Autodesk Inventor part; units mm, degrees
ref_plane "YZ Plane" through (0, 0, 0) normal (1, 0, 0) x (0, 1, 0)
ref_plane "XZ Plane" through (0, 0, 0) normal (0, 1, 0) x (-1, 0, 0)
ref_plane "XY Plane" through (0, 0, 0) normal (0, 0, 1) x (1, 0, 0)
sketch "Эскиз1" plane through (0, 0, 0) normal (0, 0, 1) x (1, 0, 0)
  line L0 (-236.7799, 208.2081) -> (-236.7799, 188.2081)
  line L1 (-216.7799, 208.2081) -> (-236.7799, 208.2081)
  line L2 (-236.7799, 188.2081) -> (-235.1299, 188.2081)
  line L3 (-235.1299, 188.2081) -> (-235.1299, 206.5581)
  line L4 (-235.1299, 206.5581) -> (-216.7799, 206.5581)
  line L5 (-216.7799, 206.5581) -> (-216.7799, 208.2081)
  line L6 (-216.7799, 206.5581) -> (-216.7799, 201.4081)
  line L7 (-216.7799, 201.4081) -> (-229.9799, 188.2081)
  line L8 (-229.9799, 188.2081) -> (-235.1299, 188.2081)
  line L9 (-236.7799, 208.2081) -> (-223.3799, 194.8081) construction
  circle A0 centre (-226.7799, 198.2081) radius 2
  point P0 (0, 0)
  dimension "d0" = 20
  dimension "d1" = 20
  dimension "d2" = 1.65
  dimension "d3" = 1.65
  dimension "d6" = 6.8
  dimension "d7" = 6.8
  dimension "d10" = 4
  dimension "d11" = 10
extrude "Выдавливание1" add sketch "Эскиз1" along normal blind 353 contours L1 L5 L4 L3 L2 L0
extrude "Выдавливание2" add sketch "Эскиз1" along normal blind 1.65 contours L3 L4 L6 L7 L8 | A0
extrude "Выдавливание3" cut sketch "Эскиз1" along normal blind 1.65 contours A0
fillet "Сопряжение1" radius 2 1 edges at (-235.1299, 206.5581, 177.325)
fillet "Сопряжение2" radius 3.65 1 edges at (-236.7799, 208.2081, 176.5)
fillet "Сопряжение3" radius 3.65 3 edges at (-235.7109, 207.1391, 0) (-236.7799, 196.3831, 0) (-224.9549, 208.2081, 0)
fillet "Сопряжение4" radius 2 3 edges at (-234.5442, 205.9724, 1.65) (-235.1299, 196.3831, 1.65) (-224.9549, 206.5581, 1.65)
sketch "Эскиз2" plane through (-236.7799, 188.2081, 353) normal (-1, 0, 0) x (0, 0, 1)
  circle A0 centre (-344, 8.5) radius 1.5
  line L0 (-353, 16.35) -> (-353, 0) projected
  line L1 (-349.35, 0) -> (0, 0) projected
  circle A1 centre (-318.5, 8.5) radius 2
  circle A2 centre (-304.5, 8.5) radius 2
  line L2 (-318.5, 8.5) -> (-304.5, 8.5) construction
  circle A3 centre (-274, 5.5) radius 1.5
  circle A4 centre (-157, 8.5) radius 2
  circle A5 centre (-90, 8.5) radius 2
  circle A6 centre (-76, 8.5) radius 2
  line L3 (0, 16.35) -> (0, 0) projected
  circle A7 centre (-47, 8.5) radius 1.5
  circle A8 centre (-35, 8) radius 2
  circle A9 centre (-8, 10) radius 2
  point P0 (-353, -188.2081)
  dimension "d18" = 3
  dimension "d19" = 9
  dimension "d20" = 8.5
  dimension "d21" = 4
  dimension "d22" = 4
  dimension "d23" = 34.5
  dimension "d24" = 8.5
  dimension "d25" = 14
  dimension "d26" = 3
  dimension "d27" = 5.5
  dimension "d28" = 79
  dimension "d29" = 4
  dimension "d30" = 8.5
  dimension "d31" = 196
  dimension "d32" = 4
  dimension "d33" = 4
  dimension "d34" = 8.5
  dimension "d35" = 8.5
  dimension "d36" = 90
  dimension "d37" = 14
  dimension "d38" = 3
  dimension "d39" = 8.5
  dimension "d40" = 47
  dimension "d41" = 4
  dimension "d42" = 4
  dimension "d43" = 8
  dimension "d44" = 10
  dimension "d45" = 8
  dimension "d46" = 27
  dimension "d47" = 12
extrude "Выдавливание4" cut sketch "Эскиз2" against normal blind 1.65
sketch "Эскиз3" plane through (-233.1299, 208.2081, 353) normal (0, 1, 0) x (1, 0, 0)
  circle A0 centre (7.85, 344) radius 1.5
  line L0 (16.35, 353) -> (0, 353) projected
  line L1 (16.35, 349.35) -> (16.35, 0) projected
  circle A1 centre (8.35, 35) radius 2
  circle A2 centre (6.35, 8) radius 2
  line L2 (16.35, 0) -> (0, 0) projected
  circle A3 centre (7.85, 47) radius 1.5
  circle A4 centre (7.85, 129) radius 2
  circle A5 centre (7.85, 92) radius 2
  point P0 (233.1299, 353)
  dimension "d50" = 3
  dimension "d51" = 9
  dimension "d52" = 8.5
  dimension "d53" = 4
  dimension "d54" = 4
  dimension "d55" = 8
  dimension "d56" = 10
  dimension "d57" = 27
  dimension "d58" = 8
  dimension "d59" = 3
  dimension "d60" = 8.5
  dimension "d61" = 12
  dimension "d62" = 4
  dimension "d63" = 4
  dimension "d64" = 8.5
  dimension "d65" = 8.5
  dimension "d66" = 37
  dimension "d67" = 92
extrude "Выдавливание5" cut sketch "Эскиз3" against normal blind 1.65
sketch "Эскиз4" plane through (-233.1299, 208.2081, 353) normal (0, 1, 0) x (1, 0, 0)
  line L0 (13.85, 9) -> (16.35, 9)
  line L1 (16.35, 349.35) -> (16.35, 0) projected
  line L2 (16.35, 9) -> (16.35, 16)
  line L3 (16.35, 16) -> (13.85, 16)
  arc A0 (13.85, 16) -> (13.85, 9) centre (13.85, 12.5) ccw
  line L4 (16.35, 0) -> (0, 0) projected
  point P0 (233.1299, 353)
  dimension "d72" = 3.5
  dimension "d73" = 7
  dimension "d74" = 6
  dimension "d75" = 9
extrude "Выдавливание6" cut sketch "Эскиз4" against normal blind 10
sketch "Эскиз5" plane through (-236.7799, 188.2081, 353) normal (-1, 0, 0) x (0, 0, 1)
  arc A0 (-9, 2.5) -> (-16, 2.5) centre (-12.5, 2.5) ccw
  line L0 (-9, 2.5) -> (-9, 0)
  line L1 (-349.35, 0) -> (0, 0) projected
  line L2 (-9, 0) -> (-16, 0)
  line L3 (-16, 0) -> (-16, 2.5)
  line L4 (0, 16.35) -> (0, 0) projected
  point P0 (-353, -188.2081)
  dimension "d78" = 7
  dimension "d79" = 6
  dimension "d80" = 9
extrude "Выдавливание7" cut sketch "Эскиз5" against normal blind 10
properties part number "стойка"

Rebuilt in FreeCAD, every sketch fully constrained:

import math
import FreeCAD as App
import Part
import Sketcher

V = App.Vector
Q = App.Units.Quantity


def edges_at(feature, points):
    """Names of the edges that pass closest to the given points."""
    edges = feature.Shape.Edges
    near = lambda p: min(range(len(edges)), key=lambda i: edges[i].distToShape(Part.Vertex(*p))[0])
    return sorted({f"Edge{near(p) + 1}" for p in points})


def add_polygon(sketch, points):
    """Adds a closed chain of lines whose ends are joined by coincident constraints."""
    first, n = sketch.GeometryCount, len(points)
    for a, b in zip(points, points[1:] + points[:1]):
        sketch.addGeometry(Part.LineSegment(App.Vector(*a, 0), App.Vector(*b, 0)), False)
    for i in range(n):
        sketch.addConstraint(Sketcher.Constraint("Coincident", first + i, 2, first + (i + 1) % n, 1))

doc = App.newDocument("Part")
params = doc.addObject("Spreadsheet::Sheet", "Params")
for row, (alias, value) in enumerate([
    ("sketch1_width", "20 mm"),
    ("sketch1_width2", "1.65 mm"),
    ("pad1_length", "353 mm"),
    ("sketch2_width", "5.15 mm"),
    ("sketch2_width2", "18.35 mm"),
    ("pad2_length", "1.65 mm"),
    ("sketch3_diameter", "4 mm"),
    ("pocket1_length", "1.65 mm"),
    ("fillet_radius", "2 mm"),
    ("fillet2_radius", "3.65 mm"),
    ("fillet3_radius", "3.65 mm"),
    ("fillet4_radius", "2 mm"),
    ("sketch4_diameter", "3 mm"),
    ("sketch4_diameter2", "4 mm"),
    ("pocket2_length", "1.65 mm"),
    ("sketch5_diameter", "3 mm"),
    ("sketch5_diameter2", "4 mm"),
    ("pocket3_length", "1.65 mm"),
    ("sketch6_radius", "3.5 mm"),
    ("sketch6_width", "2.5 mm"),
    ("pocket4_length", "10 mm"),
    ("sketch7_radius", "3.5 mm"),
    ("sketch7_width", "2.5 mm"),
    ("pocket5_length", "10 mm"),
], start=1):
    params.set(f"A{row}", alias)
    params.set(f"B{row}", "=" + value)
    params.setAlias(f"B{row}", alias)

body = doc.addObject("PartDesign::Body", "Body")

# Sketch on XY plane
sketch1 = body.newObject("Sketcher::SketchObject", "Sketch")
sketch1.AttachmentSupport = (doc.getObject("XY_Plane"), [""])
sketch1.MapMode = "FlatFace"
add_polygon(sketch1, [(-216.8, 208.2), (-236.8, 208.2), (-236.8, 188.2), (-235.1, 188.2), (-235.1, 206.6), (-216.8, 206.6)])  # lines 0-5
sketch1.addConstraint([
    Sketcher.Constraint("Horizontal", 0),
    Sketcher.Constraint("Vertical", 1),
    Sketcher.Constraint("Horizontal", 2),
    Sketcher.Constraint("Vertical", 3),
    Sketcher.Constraint("Horizontal", 4),
    Sketcher.Constraint("Vertical", 5),
    Sketcher.Constraint("Equal", 0, 1),
    Sketcher.Constraint("Equal", 4, 3),
    Sketcher.Constraint("DistanceX", 0, 2, 0, 1, Q("20 mm")),
    Sketcher.Constraint("DistanceX", 2, 1, 2, 2, Q("1.65 mm")),
    Sketcher.Constraint("DistanceX", 0, 2, -1, 1, Q("236.78 mm")),
    Sketcher.Constraint("DistanceY", -1, 1, 0, 2, Q("208.208 mm")),
])
sketch1.setExpression("Constraints[14]", "Params.sketch1_width")
sketch1.setExpression("Constraints[15]", "Params.sketch1_width2")
pad1 = body.newObject("PartDesign::Pad", "Pad")
pad1.Profile = sketch1
pad1.setExpression("Length", "Params.pad1_length")

# Sketch on XY plane
sketch2 = body.newObject("Sketcher::SketchObject", "Sketch001")
sketch2.AttachmentSupport = (doc.getObject("XY_Plane"), [""])
sketch2.MapMode = "FlatFace"
add_polygon(sketch2, [(-235, 207), (-235, 188), (-230, 188), (-217, 201), (-217, 207)])  # lines 0-4
sketch2.addConstraint([
    Sketcher.Constraint("Vertical", 0),
    Sketcher.Constraint("Horizontal", 1),
    Sketcher.Constraint("Vertical", 3),
    Sketcher.Constraint("Horizontal", 4),
    Sketcher.Constraint("Equal", 4, 0),
    Sketcher.Constraint("Equal", 1, 3),
    Sketcher.Constraint("DistanceX", 1, 1, 1, 2, Q("5.15 mm")),
    Sketcher.Constraint("DistanceX", 4, 2, 4, 1, Q("18.35 mm")),
    Sketcher.Constraint("DistanceX", 0, 2, -1, 1, Q("235.13 mm")),
    Sketcher.Constraint("DistanceY", -1, 1, 0, 2, Q("188.208 mm")),
])
sketch2.setExpression("Constraints[11]", "Params.sketch2_width")
sketch2.setExpression("Constraints[12]", "Params.sketch2_width2")
pad2 = body.newObject("PartDesign::Pad", "Pad001")
pad2.Profile = sketch2
pad2.setExpression("Length", "Params.pad2_length")

# Sketch on XY plane
sketch3 = body.newObject("Sketcher::SketchObject", "Sketch002")
sketch3.AttachmentSupport = (doc.getObject("XY_Plane"), [""])
sketch3.MapMode = "FlatFace"
sketch3.addGeometry(Part.Circle(V(-226.8, 198.2, 0), V(0, 0, 1), 2), False)
sketch3.addConstraint([
    Sketcher.Constraint("Diameter", 0, Q("4 mm")),
    Sketcher.Constraint("DistanceX", 0, 3, -1, 1, Q("226.78 mm")),
    Sketcher.Constraint("DistanceY", -1, 1, 0, 3, Q("198.208 mm")),
])
sketch3.setExpression("Constraints[0]", "Params.sketch3_diameter")
pocket1 = body.newObject("PartDesign::Pocket", "Pocket")
pocket1.Profile = sketch3
pocket1.setExpression("Length", "Params.pocket1_length")
pocket1.Reversed = True
doc.recompute()

fillet = body.newObject("PartDesign::Fillet", "Fillet")
fillet.Base = (pocket1, edges_at(pocket1, [(-235.13, 206.558, 177.325)]))
fillet.setExpression("Radius", "Params.fillet_radius")
doc.recompute()

fillet2 = body.newObject("PartDesign::Fillet", "Fillet001")
fillet2.Base = (fillet, edges_at(fillet, [(-236.78, 208.208, 176.5)]))
fillet2.setExpression("Radius", "Params.fillet2_radius")
doc.recompute()

fillet3 = body.newObject("PartDesign::Fillet", "Fillet002")
fillet3.Base = (fillet2, edges_at(fillet2, [(-235.711, 207.139, 0), (-236.78, 196.383, 0), (-224.955, 208.208, 0)]))
fillet3.setExpression("Radius", "Params.fillet3_radius")
doc.recompute()

fillet4 = body.newObject("PartDesign::Fillet", "Fillet003")
fillet4.Base = (fillet3, edges_at(fillet3, [(-234.544, 205.972, 1.65), (-235.13, 196.383, 1.65), (-224.955, 206.558, 1.65)]))
fillet4.setExpression("Radius", "Params.fillet4_radius")

# Sketch on YZ plane
sketch4 = body.newObject("Sketcher::SketchObject", "Sketch003")
sketch4.AttachmentSupport = (doc.getObject("YZ_Plane"), [""])
sketch4.MapMode = "FlatFace"
sketch4.AttachmentOffset = App.Placement(V(0, 0, -236.7799), App.Rotation())
sketch4.addGeometry([
    Part.Circle(V(196.7, 9, 0), V(0, 0, 1), 1.5),  # 0
    Part.Circle(V(196.7, 34.5, 0), V(0, 0, 1), 2),  # 1
    Part.Circle(V(196.7, 48.5, 0), V(0, 0, 1), 2),  # 2
    Part.Circle(V(193.7, 79, 0), V(0, 0, 1), 1.5),  # 3
    Part.Circle(V(196.7, 196, 0), V(0, 0, 1), 2),  # 4
    Part.Circle(V(196.7, 263, 0), V(0, 0, 1), 2),  # 5
    Part.Circle(V(196.7, 277, 0), V(0, 0, 1), 2),  # 6
    Part.Circle(V(196.7, 306, 0), V(0, 0, 1), 1.5),  # 7
    Part.Circle(V(196.2, 318, 0), V(0, 0, 1), 2),  # 8
    Part.Circle(V(198.2, 345, 0), V(0, 0, 1), 2),  # 9
], False)
sketch4.addConstraint([
    Sketcher.Constraint("Equal", 1, 2),
    Sketcher.Constraint("Equal", 0, 3),
    Sketcher.Constraint("Equal", 2, 4),
    Sketcher.Constraint("Equal", 4, 5),
    Sketcher.Constraint("Equal", 5, 6),
    Sketcher.Constraint("Equal", 3, 7),
    Sketcher.Constraint("Equal", 6, 8),
    Sketcher.Constraint("Equal", 8, 9),
    Sketcher.Constraint("Vertical", 0, 3, 1, 3),
    Sketcher.Constraint("Vertical", 1, 3, 2, 3),
    Sketcher.Constraint("Vertical", 2, 3, 4, 3),
    Sketcher.Constraint("Vertical", 4, 3, 5, 3),
    Sketcher.Constraint("Vertical", 5, 3, 6, 3),
    Sketcher.Constraint("Vertical", 6, 3, 7, 3),
    Sketcher.Constraint("Diameter", 0, Q("3 mm")),
    Sketcher.Constraint("Diameter", 1, Q("4 mm")),
    Sketcher.Constraint("DistanceY", -1, 1, 0, 3, Q("9 mm")),
    Sketcher.Constraint("DistanceY", -1, 1, 3, 3, Q("79 mm")),
    Sketcher.Constraint("DistanceY", -1, 1, 4, 3, Q("196 mm")),
    Sketcher.Constraint("DistanceY", 1, 3, 2, 3, Q("14 mm")),
    Sketcher.Constraint("DistanceX", 3, 3, 2, 3, Q("3 mm")),
    Sketcher.Constraint("DistanceY", 5, 3, 6, 3, Q("14 mm")),
    Sketcher.Constraint("DistanceY", 7, 3, 8, 3, Q("12 mm")),
    Sketcher.Constraint("DistanceY", 8, 3, 9, 3, Q("27 mm")),
    Sketcher.Constraint("DistanceY", -1, 1, 1, 3, Q("34.5 mm")),
    Sketcher.Constraint("DistanceY", -1, 1, 5, 3, Q("263 mm")),
    Sketcher.Constraint("DistanceY", -1, 1, 7, 3, Q("306 mm")),
    Sketcher.Constraint("DistanceX", 8, 3, 9, 3, Q("2 mm")),
    Sketcher.Constraint("DistanceX", 8, 3, 7, 3, Q("0.5 mm")),
    Sketcher.Constraint("DistanceX", -1, 1, 0, 3, Q("196.708 mm")),
])
sketch4.setExpression("Constraints[14]", "Params.sketch4_diameter")
sketch4.setExpression("Constraints[15]", "Params.sketch4_diameter2")
pocket2 = body.newObject("PartDesign::Pocket", "Pocket001")
pocket2.Profile = sketch4
pocket2.setExpression("Length", "Params.pocket2_length")
pocket2.Reversed = True

# Sketch on XZ plane
sketch5 = body.newObject("Sketcher::SketchObject", "Sketch004")
sketch5.AttachmentSupport = (doc.getObject("XZ_Plane"), [""])
sketch5.MapMode = "FlatFace"
sketch5.AttachmentOffset = App.Placement(V(0, 0, -208.2081), App.Rotation())
sketch5.addGeometry([
    Part.Circle(V(-225.3, 9, 0), V(0, 0, 1), 1.5),  # 0
    Part.Circle(V(-224.8, 318, 0), V(0, 0, 1), 2),  # 1
    Part.Circle(V(-226.8, 345, 0), V(0, 0, 1), 2),  # 2
    Part.Circle(V(-225.3, 306, 0), V(0, 0, 1), 1.5),  # 3
    Part.Circle(V(-225.3, 224, 0), V(0, 0, 1), 2),  # 4
    Part.Circle(V(-225.3, 261, 0), V(0, 0, 1), 2),  # 5
], False)
sketch5.addConstraint([
    Sketcher.Constraint("Equal", 1, 2),
    Sketcher.Constraint("Equal", 0, 3),
    Sketcher.Constraint("Equal", 2, 4),
    Sketcher.Constraint("Equal", 4, 5),
    Sketcher.Constraint("Vertical", 0, 3, 3, 3),
    Sketcher.Constraint("Vertical", 3, 3, 4, 3),
    Sketcher.Constraint("Vertical", 4, 3, 5, 3),
    Sketcher.Constraint("Diameter", 0, Q("3 mm")),
    Sketcher.Constraint("Diameter", 1, Q("4 mm")),
    Sketcher.Constraint("DistanceY", -1, 1, 0, 3, Q("9 mm")),
    Sketcher.Constraint("DistanceY", 1, 3, 2, 3, Q("27 mm")),
    Sketcher.Constraint("DistanceY", 3, 3, 1, 3, Q("12 mm")),
    Sketcher.Constraint("DistanceY", 4, 3, 5, 3, Q("37 mm")),
    Sketcher.Constraint("DistanceY", -1, 1, 1, 3, Q("318 mm")),
    Sketcher.Constraint("DistanceY", -1, 1, 4, 3, Q("224 mm")),
    Sketcher.Constraint("DistanceX", 2, 3, 1, 3, Q("2 mm")),
    Sketcher.Constraint("DistanceX", 0, 3, 1, 3, Q("0.5 mm")),
    Sketcher.Constraint("DistanceX", 0, 3, -1, 1, Q("225.28 mm")),
])
sketch5.setExpression("Constraints[7]", "Params.sketch5_diameter")
sketch5.setExpression("Constraints[8]", "Params.sketch5_diameter2")
pocket3 = body.newObject("PartDesign::Pocket", "Pocket002")
pocket3.Profile = sketch5
pocket3.setExpression("Length", "Params.pocket3_length")
pocket3.Reversed = True

# Sketch on XZ plane
sketch6 = body.newObject("Sketcher::SketchObject", "Sketch005")
sketch6.AttachmentSupport = (doc.getObject("XZ_Plane"), [""])
sketch6.MapMode = "FlatFace"
sketch6.AttachmentOffset = App.Placement(V(0, 0, -208.2081), App.Rotation())
sketch6.addGeometry([
    Part.ArcOfCircle(Part.Circle(V(-219.3, 340.5, 0), V(0, 0, 1), 3.5), math.radians(90), math.radians(270)),
    Part.LineSegment(V(-219.3, 344, 0), V(-216.8, 344, 0)),
    Part.LineSegment(V(-216.8, 344, 0), V(-216.8, 337, 0)),
    Part.LineSegment(V(-216.8, 337, 0), V(-219.3, 337, 0)),
], False)
sketch6.addConstraint([
    Sketcher.Constraint("Tangent", 0, 1, 1, 1),
    Sketcher.Constraint("Coincident", 1, 2, 2, 1),
    Sketcher.Constraint("Coincident", 2, 2, 3, 1),
    Sketcher.Constraint("Tangent", 3, 2, 0, 2),
    Sketcher.Constraint("Horizontal", 1),
    Sketcher.Constraint("Vertical", 2),
    Sketcher.Constraint("Horizontal", 3),
    Sketcher.Constraint("Radius", 0, Q("3.5 mm")),
    Sketcher.Constraint("DistanceX", 1, 1, 1, 2, Q("2.5 mm")),
    Sketcher.Constraint("DistanceY", -1, 1, 0, 1, Q("344 mm")),
    Sketcher.Constraint("DistanceX", 0, 3, -1, 1, Q("219.28 mm")),
])
sketch6.setExpression("Constraints[7]", "Params.sketch6_radius")
sketch6.setExpression("Constraints[8]", "Params.sketch6_width")
pocket4 = body.newObject("PartDesign::Pocket", "Pocket003")
pocket4.Profile = sketch6
pocket4.setExpression("Length", "Params.pocket4_length")
pocket4.Reversed = True

# Sketch on YZ plane
sketch7 = body.newObject("Sketcher::SketchObject", "Sketch006")
sketch7.AttachmentSupport = (doc.getObject("YZ_Plane"), [""])
sketch7.MapMode = "FlatFace"
sketch7.AttachmentOffset = App.Placement(V(0, 0, -236.7799), App.Rotation())
sketch7.addGeometry([
    Part.LineSegment(V(188.2, 344, 0), V(190.7, 344, 0)),
    Part.ArcOfCircle(Part.Circle(V(190.7, 340.5, 0), V(0, 0, 1), 3.5), math.radians(-90), math.radians(90)),
    Part.LineSegment(V(190.7, 337, 0), V(188.2, 337, 0)),
    Part.LineSegment(V(188.2, 337, 0), V(188.2, 344, 0)),
], False)
sketch7.addConstraint([
    Sketcher.Constraint("Tangent", 0, 2, 1, 2),
    Sketcher.Constraint("Tangent", 1, 1, 2, 1),
    Sketcher.Constraint("Coincident", 2, 2, 3, 1),
    Sketcher.Constraint("Coincident", 3, 2, 0, 1),
    Sketcher.Constraint("Horizontal", 0),
    Sketcher.Constraint("Horizontal", 2),
    Sketcher.Constraint("Vertical", 3),
    Sketcher.Constraint("Radius", 1, Q("3.5 mm")),
    Sketcher.Constraint("DistanceX", 0, 1, 0, 2, Q("2.5 mm")),
    Sketcher.Constraint("DistanceY", -1, 1, 0, 2, Q("344 mm")),
    Sketcher.Constraint("DistanceX", -1, 1, 1, 3, Q("190.708 mm")),
])
sketch7.setExpression("Constraints[7]", "Params.sketch7_radius")
sketch7.setExpression("Constraints[8]", "Params.sketch7_width")
pocket5 = body.newObject("PartDesign::Pocket", "Pocket004")
pocket5.Profile = sketch7
pocket5.setExpression("Length", "Params.pocket5_length")
pocket5.Reversed = True

doc.recompute()
